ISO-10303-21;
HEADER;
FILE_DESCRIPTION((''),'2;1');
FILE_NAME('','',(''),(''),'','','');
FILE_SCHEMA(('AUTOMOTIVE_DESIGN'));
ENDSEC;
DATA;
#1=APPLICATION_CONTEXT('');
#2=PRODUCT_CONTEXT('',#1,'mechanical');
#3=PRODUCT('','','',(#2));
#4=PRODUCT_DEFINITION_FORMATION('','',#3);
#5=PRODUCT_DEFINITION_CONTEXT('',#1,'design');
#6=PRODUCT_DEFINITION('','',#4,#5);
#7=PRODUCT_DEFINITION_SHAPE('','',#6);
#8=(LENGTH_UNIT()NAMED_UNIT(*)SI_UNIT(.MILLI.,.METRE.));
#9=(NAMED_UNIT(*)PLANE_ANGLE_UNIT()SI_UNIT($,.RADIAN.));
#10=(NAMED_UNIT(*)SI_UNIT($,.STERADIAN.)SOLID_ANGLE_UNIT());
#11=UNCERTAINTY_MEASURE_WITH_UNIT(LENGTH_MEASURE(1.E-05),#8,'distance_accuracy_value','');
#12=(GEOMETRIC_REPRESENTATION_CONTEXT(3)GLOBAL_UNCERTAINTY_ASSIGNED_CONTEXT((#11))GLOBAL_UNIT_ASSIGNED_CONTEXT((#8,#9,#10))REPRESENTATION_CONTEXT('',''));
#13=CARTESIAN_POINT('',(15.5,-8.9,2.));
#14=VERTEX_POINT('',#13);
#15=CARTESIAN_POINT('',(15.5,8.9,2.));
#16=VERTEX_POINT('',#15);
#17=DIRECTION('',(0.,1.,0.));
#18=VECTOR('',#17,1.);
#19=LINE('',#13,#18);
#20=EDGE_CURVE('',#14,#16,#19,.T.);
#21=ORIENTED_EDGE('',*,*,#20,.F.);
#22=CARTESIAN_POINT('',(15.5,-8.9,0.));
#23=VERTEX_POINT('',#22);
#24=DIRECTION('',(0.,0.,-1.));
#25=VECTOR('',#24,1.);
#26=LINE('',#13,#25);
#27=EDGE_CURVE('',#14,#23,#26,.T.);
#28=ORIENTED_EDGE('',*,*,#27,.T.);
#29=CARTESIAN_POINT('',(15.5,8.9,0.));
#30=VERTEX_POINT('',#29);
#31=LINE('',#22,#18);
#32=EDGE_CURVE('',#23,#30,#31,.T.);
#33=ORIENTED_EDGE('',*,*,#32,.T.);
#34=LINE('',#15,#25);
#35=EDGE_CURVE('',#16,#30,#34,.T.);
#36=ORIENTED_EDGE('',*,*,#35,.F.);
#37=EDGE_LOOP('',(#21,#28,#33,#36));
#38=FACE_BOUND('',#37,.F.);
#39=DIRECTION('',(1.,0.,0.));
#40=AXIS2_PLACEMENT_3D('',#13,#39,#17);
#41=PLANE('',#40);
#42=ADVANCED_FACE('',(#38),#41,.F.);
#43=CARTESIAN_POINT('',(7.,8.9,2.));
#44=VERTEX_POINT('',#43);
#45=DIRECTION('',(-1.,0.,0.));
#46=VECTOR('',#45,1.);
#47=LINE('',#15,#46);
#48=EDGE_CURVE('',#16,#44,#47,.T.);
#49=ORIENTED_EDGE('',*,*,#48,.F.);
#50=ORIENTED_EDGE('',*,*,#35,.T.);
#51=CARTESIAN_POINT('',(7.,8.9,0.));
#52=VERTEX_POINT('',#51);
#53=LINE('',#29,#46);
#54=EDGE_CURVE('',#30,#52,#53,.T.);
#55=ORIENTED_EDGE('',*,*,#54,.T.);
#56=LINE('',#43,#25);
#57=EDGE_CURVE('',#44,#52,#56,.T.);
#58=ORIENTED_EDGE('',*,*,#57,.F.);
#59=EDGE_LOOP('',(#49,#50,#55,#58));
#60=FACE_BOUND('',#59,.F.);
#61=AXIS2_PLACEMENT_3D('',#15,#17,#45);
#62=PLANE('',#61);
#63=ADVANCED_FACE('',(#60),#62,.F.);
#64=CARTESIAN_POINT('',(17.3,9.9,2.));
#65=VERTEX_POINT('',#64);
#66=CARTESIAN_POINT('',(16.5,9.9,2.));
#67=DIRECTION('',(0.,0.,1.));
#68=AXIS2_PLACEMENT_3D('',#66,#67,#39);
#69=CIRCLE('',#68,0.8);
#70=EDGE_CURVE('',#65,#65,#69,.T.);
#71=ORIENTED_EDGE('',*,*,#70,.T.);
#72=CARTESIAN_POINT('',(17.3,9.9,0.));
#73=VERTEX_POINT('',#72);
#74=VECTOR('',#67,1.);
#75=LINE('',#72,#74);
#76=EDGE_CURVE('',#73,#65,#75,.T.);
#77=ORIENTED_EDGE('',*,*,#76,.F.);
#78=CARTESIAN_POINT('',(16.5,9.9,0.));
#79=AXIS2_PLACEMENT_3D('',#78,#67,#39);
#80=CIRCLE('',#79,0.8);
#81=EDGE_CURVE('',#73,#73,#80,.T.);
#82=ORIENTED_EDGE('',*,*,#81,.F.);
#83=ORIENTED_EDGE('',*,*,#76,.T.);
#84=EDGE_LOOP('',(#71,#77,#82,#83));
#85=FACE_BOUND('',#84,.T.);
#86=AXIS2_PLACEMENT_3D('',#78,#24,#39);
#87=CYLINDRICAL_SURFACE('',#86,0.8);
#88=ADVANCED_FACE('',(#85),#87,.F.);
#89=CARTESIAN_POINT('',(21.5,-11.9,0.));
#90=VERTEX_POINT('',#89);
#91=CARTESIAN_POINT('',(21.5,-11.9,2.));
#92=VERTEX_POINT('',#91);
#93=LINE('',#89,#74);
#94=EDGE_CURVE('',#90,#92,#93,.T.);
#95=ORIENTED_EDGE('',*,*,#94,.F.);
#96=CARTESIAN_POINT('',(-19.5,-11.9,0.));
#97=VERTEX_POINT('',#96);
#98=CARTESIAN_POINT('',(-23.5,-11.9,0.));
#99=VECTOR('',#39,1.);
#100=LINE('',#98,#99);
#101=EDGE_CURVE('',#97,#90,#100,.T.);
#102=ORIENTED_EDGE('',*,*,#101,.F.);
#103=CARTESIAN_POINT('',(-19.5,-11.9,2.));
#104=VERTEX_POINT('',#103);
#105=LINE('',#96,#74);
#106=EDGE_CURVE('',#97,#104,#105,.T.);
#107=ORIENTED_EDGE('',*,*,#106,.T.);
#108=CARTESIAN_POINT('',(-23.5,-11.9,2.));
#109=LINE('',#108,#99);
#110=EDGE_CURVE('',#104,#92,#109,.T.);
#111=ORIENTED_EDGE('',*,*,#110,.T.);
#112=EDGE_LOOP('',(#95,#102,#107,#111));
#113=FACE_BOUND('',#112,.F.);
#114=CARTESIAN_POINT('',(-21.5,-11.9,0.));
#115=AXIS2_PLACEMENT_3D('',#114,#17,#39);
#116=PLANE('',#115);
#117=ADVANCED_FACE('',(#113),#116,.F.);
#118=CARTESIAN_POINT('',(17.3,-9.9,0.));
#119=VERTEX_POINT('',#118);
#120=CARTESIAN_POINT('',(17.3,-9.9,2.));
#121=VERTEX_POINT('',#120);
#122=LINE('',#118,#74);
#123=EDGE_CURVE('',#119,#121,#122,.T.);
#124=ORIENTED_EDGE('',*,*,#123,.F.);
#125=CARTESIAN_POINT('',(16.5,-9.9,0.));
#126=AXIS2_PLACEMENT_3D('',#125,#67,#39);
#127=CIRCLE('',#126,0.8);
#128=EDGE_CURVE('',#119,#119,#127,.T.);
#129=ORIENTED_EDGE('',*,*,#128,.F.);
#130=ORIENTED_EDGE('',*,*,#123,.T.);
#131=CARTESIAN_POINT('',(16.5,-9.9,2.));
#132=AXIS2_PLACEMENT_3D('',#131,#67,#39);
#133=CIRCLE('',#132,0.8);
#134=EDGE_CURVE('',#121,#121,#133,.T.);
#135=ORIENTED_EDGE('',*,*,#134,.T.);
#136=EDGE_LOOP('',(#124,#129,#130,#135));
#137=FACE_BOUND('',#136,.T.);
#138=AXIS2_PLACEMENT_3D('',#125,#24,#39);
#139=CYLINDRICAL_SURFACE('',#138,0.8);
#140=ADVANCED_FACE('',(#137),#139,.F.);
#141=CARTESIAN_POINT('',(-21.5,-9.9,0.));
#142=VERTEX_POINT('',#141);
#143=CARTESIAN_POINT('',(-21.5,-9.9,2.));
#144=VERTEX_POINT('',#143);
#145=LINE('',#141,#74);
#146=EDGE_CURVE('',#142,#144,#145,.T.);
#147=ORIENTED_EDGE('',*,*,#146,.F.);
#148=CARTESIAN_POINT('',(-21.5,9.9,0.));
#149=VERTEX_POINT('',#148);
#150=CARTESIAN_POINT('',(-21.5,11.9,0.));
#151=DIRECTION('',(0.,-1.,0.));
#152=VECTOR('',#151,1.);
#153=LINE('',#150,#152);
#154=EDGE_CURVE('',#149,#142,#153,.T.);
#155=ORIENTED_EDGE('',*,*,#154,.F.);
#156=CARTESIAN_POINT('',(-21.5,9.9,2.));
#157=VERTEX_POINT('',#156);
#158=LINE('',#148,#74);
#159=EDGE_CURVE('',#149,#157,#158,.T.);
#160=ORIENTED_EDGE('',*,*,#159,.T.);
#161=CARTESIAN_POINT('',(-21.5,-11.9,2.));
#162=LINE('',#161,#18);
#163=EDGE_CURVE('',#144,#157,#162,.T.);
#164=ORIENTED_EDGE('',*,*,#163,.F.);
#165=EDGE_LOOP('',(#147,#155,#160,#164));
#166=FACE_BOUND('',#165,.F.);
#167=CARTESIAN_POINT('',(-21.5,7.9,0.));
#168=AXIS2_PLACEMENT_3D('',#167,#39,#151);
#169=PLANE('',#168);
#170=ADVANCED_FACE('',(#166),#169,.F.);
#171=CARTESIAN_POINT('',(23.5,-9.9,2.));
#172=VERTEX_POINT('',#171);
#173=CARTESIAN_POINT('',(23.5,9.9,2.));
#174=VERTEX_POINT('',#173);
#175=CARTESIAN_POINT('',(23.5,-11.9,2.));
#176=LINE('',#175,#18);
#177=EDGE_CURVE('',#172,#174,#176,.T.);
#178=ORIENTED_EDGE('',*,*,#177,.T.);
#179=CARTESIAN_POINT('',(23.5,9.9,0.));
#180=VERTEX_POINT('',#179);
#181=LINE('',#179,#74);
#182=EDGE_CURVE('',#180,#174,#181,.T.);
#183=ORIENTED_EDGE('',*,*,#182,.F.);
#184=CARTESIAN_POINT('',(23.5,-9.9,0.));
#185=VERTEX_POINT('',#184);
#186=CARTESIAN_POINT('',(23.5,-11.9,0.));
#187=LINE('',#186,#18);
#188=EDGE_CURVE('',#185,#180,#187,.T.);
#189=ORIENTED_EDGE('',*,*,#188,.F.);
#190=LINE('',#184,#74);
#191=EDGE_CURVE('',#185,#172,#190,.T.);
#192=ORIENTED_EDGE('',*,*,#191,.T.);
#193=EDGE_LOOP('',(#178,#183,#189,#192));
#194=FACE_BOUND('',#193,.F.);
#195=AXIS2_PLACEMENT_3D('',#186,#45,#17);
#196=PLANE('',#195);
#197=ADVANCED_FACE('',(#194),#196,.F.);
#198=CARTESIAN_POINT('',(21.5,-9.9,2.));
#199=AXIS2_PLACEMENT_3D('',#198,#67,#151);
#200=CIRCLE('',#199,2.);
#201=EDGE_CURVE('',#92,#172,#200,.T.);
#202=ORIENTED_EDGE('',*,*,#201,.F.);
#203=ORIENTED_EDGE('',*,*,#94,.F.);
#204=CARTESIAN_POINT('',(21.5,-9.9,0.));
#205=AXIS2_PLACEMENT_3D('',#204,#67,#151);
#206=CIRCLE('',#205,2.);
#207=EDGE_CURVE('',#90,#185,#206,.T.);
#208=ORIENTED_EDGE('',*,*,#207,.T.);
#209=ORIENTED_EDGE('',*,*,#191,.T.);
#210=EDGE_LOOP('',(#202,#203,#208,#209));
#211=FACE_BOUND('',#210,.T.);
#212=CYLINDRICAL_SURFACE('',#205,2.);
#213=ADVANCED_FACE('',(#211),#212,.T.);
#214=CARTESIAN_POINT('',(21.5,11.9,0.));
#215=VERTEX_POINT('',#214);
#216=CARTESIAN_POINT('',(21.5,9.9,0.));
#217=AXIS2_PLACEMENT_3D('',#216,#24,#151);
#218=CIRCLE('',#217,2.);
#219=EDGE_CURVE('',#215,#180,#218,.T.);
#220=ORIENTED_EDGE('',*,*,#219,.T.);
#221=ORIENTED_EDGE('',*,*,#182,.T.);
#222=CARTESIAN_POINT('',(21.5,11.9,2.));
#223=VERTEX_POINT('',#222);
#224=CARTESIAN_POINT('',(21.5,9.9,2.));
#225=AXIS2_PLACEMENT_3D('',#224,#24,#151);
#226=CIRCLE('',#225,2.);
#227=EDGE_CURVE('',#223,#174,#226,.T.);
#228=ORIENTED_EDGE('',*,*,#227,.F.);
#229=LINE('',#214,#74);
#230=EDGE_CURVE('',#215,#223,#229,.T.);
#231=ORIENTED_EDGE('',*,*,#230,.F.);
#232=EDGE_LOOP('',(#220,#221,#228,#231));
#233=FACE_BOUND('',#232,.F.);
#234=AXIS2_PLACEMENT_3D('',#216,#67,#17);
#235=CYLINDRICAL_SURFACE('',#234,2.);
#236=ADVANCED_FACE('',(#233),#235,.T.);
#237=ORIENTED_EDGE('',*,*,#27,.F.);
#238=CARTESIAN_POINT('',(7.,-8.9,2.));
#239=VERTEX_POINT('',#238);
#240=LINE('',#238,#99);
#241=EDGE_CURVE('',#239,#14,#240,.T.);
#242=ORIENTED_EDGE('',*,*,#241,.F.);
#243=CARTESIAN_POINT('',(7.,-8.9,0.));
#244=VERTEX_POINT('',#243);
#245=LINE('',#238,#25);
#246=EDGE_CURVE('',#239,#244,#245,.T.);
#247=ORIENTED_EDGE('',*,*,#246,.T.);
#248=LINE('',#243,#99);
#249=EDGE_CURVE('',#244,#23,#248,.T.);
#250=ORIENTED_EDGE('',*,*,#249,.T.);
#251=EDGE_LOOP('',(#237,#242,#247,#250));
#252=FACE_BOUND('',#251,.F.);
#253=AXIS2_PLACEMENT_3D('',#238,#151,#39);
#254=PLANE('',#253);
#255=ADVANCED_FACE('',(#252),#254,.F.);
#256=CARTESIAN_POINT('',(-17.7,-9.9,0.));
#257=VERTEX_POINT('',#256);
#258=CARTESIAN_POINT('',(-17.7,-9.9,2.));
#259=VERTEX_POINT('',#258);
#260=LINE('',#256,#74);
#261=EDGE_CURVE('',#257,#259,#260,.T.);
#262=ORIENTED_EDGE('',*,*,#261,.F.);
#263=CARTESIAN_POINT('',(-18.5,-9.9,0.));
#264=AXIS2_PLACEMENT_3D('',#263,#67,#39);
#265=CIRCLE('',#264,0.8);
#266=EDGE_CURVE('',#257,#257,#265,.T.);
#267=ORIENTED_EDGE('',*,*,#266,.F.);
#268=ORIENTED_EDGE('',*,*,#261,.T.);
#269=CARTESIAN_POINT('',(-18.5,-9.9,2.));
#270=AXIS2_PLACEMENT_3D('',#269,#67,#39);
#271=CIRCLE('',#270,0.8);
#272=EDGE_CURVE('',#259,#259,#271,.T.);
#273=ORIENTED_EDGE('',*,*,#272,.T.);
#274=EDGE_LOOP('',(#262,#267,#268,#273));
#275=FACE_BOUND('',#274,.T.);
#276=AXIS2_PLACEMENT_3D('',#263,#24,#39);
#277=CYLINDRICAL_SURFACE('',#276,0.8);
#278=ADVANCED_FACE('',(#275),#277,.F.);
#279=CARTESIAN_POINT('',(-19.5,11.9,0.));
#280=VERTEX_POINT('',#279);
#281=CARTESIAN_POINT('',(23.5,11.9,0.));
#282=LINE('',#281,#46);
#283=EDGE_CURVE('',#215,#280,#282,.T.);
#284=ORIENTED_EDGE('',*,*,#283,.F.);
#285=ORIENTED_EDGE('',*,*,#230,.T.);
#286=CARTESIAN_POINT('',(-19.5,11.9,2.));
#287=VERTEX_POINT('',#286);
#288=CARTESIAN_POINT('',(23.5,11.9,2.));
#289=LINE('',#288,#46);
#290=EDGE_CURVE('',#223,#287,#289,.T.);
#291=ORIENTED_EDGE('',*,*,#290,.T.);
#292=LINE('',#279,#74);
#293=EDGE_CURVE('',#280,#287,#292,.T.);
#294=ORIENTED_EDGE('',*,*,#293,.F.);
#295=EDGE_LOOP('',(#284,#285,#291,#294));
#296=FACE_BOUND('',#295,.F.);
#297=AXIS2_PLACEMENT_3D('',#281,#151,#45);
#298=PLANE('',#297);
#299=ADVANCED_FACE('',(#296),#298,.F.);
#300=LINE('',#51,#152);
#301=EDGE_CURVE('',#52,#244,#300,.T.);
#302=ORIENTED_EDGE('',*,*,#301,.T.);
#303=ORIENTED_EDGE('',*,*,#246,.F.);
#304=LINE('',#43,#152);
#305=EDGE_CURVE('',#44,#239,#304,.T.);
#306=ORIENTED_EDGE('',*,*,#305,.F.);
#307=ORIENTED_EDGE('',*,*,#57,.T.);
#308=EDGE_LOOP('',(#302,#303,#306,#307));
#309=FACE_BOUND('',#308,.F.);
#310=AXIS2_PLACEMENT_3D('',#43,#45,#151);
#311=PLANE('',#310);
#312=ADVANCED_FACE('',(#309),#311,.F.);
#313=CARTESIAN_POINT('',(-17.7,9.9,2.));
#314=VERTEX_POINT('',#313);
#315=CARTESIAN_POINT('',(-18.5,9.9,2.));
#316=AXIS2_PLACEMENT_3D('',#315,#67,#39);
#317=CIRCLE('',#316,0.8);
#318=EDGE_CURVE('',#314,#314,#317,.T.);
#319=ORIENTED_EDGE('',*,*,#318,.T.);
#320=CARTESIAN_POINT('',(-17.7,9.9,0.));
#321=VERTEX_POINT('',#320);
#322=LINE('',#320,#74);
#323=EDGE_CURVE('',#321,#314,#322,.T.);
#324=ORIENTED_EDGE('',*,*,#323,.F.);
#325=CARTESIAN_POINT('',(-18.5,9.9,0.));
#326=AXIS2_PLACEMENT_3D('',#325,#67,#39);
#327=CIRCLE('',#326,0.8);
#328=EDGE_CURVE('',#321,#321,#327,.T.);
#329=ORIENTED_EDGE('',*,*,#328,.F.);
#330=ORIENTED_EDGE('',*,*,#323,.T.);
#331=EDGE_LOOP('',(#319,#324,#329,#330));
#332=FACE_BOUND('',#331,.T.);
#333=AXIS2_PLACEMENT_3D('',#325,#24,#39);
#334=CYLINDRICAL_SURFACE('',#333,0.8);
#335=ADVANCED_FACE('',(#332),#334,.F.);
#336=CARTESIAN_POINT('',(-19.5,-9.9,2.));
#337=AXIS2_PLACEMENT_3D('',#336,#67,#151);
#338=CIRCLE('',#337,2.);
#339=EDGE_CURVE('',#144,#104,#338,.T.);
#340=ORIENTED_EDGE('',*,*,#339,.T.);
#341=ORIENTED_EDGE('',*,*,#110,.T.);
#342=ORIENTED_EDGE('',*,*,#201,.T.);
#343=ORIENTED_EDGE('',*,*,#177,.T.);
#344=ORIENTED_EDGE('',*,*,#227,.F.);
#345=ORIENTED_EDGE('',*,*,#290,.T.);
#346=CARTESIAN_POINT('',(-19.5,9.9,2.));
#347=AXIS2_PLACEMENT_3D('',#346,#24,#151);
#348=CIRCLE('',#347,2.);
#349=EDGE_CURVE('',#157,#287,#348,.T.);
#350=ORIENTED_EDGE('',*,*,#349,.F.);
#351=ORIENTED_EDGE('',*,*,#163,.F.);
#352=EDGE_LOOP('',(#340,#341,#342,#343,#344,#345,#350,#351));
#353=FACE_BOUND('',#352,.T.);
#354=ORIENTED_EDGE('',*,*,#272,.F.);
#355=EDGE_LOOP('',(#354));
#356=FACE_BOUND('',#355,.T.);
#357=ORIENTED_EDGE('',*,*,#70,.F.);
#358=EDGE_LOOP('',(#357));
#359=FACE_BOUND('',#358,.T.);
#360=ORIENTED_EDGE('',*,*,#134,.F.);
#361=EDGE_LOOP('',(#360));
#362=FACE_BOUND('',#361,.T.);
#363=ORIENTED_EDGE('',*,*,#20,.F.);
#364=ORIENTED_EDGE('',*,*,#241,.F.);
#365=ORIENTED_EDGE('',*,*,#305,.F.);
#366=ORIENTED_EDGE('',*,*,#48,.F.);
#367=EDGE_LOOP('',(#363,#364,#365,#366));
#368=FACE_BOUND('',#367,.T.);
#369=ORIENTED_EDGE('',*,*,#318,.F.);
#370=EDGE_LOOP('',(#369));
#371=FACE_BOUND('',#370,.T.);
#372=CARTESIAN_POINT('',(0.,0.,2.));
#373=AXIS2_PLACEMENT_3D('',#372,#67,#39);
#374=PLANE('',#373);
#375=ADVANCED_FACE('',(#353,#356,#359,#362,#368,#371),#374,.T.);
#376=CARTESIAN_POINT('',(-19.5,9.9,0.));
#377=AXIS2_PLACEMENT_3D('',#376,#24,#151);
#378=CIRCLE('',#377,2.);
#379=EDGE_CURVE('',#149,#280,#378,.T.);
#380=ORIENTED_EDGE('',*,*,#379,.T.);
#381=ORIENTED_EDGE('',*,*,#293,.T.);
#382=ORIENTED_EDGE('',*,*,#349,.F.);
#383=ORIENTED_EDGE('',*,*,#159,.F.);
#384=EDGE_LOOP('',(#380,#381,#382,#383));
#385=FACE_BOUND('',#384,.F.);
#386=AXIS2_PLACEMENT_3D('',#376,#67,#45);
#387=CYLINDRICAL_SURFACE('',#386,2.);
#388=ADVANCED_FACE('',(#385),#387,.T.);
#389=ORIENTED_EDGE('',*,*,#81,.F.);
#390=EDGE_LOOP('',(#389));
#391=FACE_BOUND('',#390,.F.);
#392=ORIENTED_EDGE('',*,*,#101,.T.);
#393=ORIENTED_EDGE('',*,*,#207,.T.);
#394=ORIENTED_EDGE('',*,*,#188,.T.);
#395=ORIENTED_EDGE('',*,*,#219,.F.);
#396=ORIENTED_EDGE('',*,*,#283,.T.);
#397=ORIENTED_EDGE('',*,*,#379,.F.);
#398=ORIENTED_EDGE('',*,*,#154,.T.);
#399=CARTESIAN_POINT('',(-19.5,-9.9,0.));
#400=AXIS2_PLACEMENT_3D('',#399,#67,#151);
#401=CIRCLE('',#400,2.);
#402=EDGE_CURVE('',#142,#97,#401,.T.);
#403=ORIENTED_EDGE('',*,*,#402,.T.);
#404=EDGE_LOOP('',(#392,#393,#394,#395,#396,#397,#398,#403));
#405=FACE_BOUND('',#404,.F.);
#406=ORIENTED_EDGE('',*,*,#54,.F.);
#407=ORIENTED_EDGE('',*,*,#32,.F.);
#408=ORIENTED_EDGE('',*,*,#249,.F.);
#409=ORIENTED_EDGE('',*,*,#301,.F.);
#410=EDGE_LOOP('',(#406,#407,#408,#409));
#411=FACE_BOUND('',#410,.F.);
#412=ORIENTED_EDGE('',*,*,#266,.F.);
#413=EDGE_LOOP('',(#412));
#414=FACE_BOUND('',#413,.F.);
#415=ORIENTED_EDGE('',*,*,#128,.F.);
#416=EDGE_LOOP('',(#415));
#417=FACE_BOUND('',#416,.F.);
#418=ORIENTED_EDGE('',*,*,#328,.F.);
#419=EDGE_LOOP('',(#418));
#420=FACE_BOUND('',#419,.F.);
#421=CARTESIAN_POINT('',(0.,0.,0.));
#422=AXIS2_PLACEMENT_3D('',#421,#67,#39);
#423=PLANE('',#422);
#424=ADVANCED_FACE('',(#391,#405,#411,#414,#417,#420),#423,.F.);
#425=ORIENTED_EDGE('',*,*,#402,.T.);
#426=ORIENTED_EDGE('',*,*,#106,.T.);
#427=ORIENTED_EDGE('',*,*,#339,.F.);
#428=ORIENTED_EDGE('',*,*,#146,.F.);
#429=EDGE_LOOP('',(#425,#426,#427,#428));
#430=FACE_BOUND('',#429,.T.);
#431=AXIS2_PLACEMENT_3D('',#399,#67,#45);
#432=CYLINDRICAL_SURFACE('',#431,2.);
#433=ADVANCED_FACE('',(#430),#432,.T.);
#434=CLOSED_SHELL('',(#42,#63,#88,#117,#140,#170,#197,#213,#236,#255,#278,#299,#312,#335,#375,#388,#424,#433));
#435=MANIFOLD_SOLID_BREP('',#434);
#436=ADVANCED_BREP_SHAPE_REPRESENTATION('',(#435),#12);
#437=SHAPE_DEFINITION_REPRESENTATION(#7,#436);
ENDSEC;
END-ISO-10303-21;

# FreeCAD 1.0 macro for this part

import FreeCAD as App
import Part
import Sketcher
from FreeCAD import Vector
Q = App.Units.Quantity


def edges_at(feature, points):
    """Names of the edges that pass closest to the given points."""
    edges = feature.Shape.Edges
    near = lambda p: min(range(len(edges)), key=lambda i: edges[i].distToShape(Part.Vertex(*p))[0])
    return sorted({f"Edge{near(p) + 1}" for p in points})


def add_polygon(sketch, points):
    """Adds a closed chain of lines whose ends are joined by coincident constraints."""
    first, n = sketch.GeometryCount, len(points)
    for a, b in zip(points, points[1:] + points[:1]):
        sketch.addGeometry(Part.LineSegment(App.Vector(*a, 0), App.Vector(*b, 0)), False)
    for i in range(n):
        sketch.addConstraint(Sketcher.Constraint("Coincident", first + i, 2, first + (i + 1) % n, 1))

doc = App.newDocument("Part")
body = doc.addObject("PartDesign::Body", "Body")

# Sketch on XY plane
sketch1 = body.newObject("Sketcher::SketchObject", "Sketch")
sketch1.AttachmentSupport = (doc.getObject("XY_Plane"), [""])
sketch1.MapMode = "FlatFace"
add_polygon(sketch1, [(-21.5, -11.9), (23.5, -11.9), (23.5, 11.9), (-21.5, 11.9)])  # lines 0-3
sketch1.addGeometry(Part.Circle(Vector(16.5, -9.9, 0), Vector(0, 0, 1), 0.8), False)  # 4
sketch1.addGeometry(Part.Circle(Vector(-18.5, 9.9, 0), Vector(0, 0, 1), 0.8), False)  # 5
sketch1.addGeometry(Part.Circle(Vector(16.5, 9.9, 0), Vector(0, 0, 1), 0.8), False)  # 6
sketch1.addGeometry(Part.Circle(Vector(-18.5, -9.9, 0), Vector(0, 0, 1), 0.8), False)  # 7
sketch1.addConstraint(Sketcher.Constraint("Horizontal", 0))
sketch1.addConstraint(Sketcher.Constraint("Vertical", 1))
sketch1.addConstraint(Sketcher.Constraint("Horizontal", 2))
sketch1.addConstraint(Sketcher.Constraint("Vertical", 3))
sketch1.addConstraint(Sketcher.Constraint("Equal", 4, 5))
sketch1.addConstraint(Sketcher.Constraint("Equal", 5, 6))
sketch1.addConstraint(Sketcher.Constraint("Equal", 6, 7))
sketch1.addConstraint(Sketcher.Constraint("Symmetric", 4, 3, 6, 3, -1))
sketch1.addConstraint(Sketcher.Constraint("Symmetric", 5, 3, 7, 3, -1))
sketch1.addConstraint(Sketcher.Constraint("Horizontal", 5, 3, 6, 3))
sketch1.addConstraint(Sketcher.Constraint("Diameter", 4, Q("1.6 mm")))
sketch1.addConstraint(Sketcher.Constraint("DistanceX", 0, 1, 0, 2, Q("45 mm")))
sketch1.addConstraint(Sketcher.Constraint("DistanceY", 1, 1, 1, 2, Q("23.8 mm")))
sketch1.addConstraint(Sketcher.Constraint("DistanceX", 5, 3, 4, 3, Q("35 mm")))
sketch1.addConstraint(Sketcher.Constraint("DistanceX", 4, 3, 0, 2, Q("7 mm")))
sketch1.addConstraint(Sketcher.Constraint("DistanceY", 0, 2, 4, 3, Q("2 mm")))
sketch1.addConstraint(Sketcher.Constraint("DistanceY", 6, 3, 1, 2, Q("2 mm")))
sketch1.addConstraint(Sketcher.Constraint("DistanceX", -1, 1, 4, 3, Q("16.5 mm")))
pad1 = body.newObject("PartDesign::Pad", "Pad")
pad1.Profile = sketch1
pad1.Length = 2
doc.recompute()

fillet = body.newObject("PartDesign::Fillet", "Fillet")
fillet.Base = (pad1, edges_at(pad1, [
    (23.5, 11.9, 1),
    (23.5, -11.9, 1),
    (-21.5, -11.9, 1),
    (-21.5, 11.9, 1),
]))
fillet.Radius = 2

# Sketch on XY plane
sketch2 = body.newObject("Sketcher::SketchObject", "Sketch001")
sketch2.AttachmentSupport = (doc.getObject("XY_Plane"), [""])
sketch2.MapMode = "FlatFace"
sketch2.AttachmentOffset = App.Placement(Vector(0, 0, 2), App.Rotation())
add_polygon(sketch2, [(16, -9), (16, 9), (7, 9), (7, -9)])  # lines 0-3
sketch2.addConstraint(Sketcher.Constraint("Vertical", 0))
sketch2.addConstraint(Sketcher.Constraint("Horizontal", 1))
sketch2.addConstraint(Sketcher.Constraint("Vertical", 2))
sketch2.addConstraint(Sketcher.Constraint("Horizontal", 3))
sketch2.addConstraint(Sketcher.Constraint("DistanceX", 1, 2, 1, 1, Q("8.5 mm")))
sketch2.addConstraint(Sketcher.Constraint("DistanceY", 0, 1, 0, 2, Q("17.8 mm")))
sketch2.addConstraint(Sketcher.Constraint("DistanceX", -1, 1, 1, 2, Q("7 mm")))
sketch2.addConstraint(Sketcher.Constraint("DistanceY", -1, 1, 0, 2, Q("8.9 mm")))
pocket1 = body.newObject("PartDesign::Pocket", "Pocket")
pocket1.Profile = sketch2
pocket1.Length = 2

doc.recompute()
